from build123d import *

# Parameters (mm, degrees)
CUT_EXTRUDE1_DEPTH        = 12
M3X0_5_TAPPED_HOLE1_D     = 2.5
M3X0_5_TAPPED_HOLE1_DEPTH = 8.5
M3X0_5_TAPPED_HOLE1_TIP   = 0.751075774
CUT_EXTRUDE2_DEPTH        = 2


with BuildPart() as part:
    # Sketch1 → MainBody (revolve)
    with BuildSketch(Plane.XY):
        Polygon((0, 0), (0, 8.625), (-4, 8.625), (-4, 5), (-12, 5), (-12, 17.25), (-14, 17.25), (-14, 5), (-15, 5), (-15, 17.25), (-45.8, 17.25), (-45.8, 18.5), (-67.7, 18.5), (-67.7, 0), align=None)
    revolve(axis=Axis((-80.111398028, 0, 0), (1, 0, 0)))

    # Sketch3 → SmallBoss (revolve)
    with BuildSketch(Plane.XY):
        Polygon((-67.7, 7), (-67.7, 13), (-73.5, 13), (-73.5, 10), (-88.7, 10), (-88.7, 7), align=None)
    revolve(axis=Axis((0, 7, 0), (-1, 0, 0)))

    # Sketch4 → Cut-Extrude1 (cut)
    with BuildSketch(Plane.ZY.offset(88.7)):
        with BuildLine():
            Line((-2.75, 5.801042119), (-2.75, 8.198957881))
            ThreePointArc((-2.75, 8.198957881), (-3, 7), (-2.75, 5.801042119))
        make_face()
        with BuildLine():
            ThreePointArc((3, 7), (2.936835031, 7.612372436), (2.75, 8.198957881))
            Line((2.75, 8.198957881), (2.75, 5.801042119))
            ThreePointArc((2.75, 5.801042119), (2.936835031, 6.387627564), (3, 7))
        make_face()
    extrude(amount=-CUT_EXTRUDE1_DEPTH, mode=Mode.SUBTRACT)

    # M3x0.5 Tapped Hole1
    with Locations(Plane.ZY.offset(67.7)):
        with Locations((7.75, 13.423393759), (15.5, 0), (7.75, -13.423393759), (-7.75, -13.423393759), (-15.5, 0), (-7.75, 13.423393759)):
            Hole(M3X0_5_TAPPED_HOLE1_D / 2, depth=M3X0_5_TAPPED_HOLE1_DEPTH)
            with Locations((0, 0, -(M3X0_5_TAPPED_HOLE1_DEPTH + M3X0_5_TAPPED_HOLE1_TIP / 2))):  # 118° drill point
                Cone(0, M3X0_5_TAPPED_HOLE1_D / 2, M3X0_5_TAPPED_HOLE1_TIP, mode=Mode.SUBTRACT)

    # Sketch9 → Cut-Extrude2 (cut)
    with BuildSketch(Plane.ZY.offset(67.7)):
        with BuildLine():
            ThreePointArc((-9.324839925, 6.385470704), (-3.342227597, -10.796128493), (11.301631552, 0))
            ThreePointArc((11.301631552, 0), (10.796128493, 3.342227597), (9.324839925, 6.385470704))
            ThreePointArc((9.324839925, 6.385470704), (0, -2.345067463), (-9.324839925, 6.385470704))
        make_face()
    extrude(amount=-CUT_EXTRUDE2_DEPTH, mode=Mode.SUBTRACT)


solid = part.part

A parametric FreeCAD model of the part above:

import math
import FreeCAD as App
import Part
import Sketcher
from FreeCAD import Vector
Q = App.Units.Quantity

doc = App.newDocument("Part")
body = doc.addObject("PartDesign::Body", "Body")

sketch1 = doc.addObject("Sketcher::SketchObject", "Sketch")
body.addObject(sketch1)
sketch1.AttachmentSupport = (doc.XY_Plane, [""])
sketch1.MapMode = "FlatFace"
sketch1.addGeometry(Part.LineSegment(Vector(0, 0, 0), Vector(0, 8.6, 0)), False)
sketch1.addGeometry(Part.LineSegment(Vector(0, 8.6, 0), Vector(-4, 8.6, 0)), False)
sketch1.addGeometry(Part.LineSegment(Vector(-4, 8.6, 0), Vector(-4, 5, 0)), False)
sketch1.addGeometry(Part.LineSegment(Vector(-4, 5, 0), Vector(-12, 5, 0)), False)
sketch1.addGeometry(Part.LineSegment(Vector(-12, 5, 0), Vector(-12, 17.2, 0)), False)
sketch1.addGeometry(Part.LineSegment(Vector(-12, 17.2, 0), Vector(-14, 17.2, 0)), False)
sketch1.addGeometry(Part.LineSegment(Vector(-14, 17.2, 0), Vector(-14, 5, 0)), False)
sketch1.addGeometry(Part.LineSegment(Vector(-14, 5, 0), Vector(-15, 5, 0)), False)
sketch1.addGeometry(Part.LineSegment(Vector(-15, 5, 0), Vector(-15, 17.2, 0)), False)
sketch1.addGeometry(Part.LineSegment(Vector(-15, 17.2, 0), Vector(-45.8, 17.2, 0)), False)
sketch1.addGeometry(Part.LineSegment(Vector(-45.8, 17.2, 0), Vector(-45.8, 18.5, 0)), False)
sketch1.addGeometry(Part.LineSegment(Vector(-45.8, 18.5, 0), Vector(-67.7, 18.5, 0)), False)
sketch1.addGeometry(Part.LineSegment(Vector(-67.7, 18.5, 0), Vector(-67.7, 0, 0)), False)
sketch1.addGeometry(Part.LineSegment(Vector(-67.7, 0, 0), Vector(0, 0, 0)), False)
sketch1.addConstraint(Sketcher.Constraint("Coincident", 0, 2, 1, 1))
sketch1.addConstraint(Sketcher.Constraint("Coincident", 1, 2, 2, 1))
sketch1.addConstraint(Sketcher.Constraint("Coincident", 2, 2, 3, 1))
sketch1.addConstraint(Sketcher.Constraint("Coincident", 3, 2, 4, 1))
sketch1.addConstraint(Sketcher.Constraint("Coincident", 4, 2, 5, 1))
sketch1.addConstraint(Sketcher.Constraint("Coincident", 5, 2, 6, 1))
sketch1.addConstraint(Sketcher.Constraint("Coincident", 6, 2, 7, 1))
sketch1.addConstraint(Sketcher.Constraint("Coincident", 7, 2, 8, 1))
sketch1.addConstraint(Sketcher.Constraint("Coincident", 8, 2, 9, 1))
sketch1.addConstraint(Sketcher.Constraint("Coincident", 9, 2, 10, 1))
sketch1.addConstraint(Sketcher.Constraint("Coincident", 10, 2, 11, 1))
sketch1.addConstraint(Sketcher.Constraint("Coincident", 11, 2, 12, 1))
sketch1.addConstraint(Sketcher.Constraint("Coincident", 12, 2, 13, 1))
sketch1.addConstraint(Sketcher.Constraint("Coincident", 13, 2, 0, 1))
sketch1.addConstraint(Sketcher.Constraint("Vertical", 0))
sketch1.addConstraint(Sketcher.Constraint("Horizontal", 1))
sketch1.addConstraint(Sketcher.Constraint("Vertical", 2))
sketch1.addConstraint(Sketcher.Constraint("Horizontal", 3))
sketch1.addConstraint(Sketcher.Constraint("Vertical", 4))
sketch1.addConstraint(Sketcher.Constraint("Horizontal", 5))
sketch1.addConstraint(Sketcher.Constraint("Vertical", 6))
sketch1.addConstraint(Sketcher.Constraint("Horizontal", 7))
sketch1.addConstraint(Sketcher.Constraint("Vertical", 8))
sketch1.addConstraint(Sketcher.Constraint("Horizontal", 9))
sketch1.addConstraint(Sketcher.Constraint("Vertical", 10))
sketch1.addConstraint(Sketcher.Constraint("Horizontal", 11))
sketch1.addConstraint(Sketcher.Constraint("Vertical", 12))
sketch1.addConstraint(Sketcher.Constraint("Horizontal", 13))
sketch1.addConstraint(Sketcher.Constraint("Coincident", 13, 2, -1, 1))
sketch1.addConstraint(Sketcher.Constraint("Horizontal", 3, 2, 6, 2))
sketch1.addConstraint(Sketcher.Constraint("Horizontal", 5, 2, 8, 2))
sketch1.addConstraint(Sketcher.Constraint("DistanceX", 1, 2, 1, 1, Q("4 mm")))
sketch1.addConstraint(Sketcher.Constraint("DistanceX", 3, 2, 3, 1, Q("8 mm")))
sketch1.addConstraint(Sketcher.Constraint("DistanceX", 5, 2, 5, 1, Q("2 mm")))
sketch1.addConstraint(Sketcher.Constraint("DistanceX", 7, 2, 7, 1, Q("1 mm")))
sketch1.addConstraint(Sketcher.Constraint("DistanceX", 9, 2, 9, 1, Q("30.8 mm")))
sketch1.addConstraint(Sketcher.Constraint("DistanceX", 11, 2, 11, 1, Q("21.9 mm")))
sketch1.addConstraint(Sketcher.Constraint("DistanceY", 12, 2, 12, 1, Q("18.5 mm")))
sketch1.addConstraint(Sketcher.Constraint("DistanceY", -1, 1, 2, 2, Q("5 mm")))
sketch1.addConstraint(Sketcher.Constraint("DistanceY", 4, 1, 4, 2, Q("12.25 mm")))
sketch1.addConstraint(Sketcher.Constraint("DistanceY", 0, 1, 0, 2, Q("8.625 mm")))
revolution = doc.addObject("PartDesign::Revolution", "Revolution")
body.addObject(revolution)
revolution.Profile = sketch1
revolution.ReferenceAxis = (sketch1, ["H_Axis"])
revolution.Angle = 360

sketch2 = doc.addObject("Sketcher::SketchObject", "Sketch001")
body.addObject(sketch2)
sketch2.AttachmentSupport = (doc.XY_Plane, [""])
sketch2.MapMode = "FlatFace"
sketch2.addGeometry(Part.LineSegment(Vector(-67.7, 7, 0), Vector(-67.7, 13, 0)), False)
sketch2.addGeometry(Part.LineSegment(Vector(-67.7, 13, 0), Vector(-73.5, 13, 0)), False)
sketch2.addGeometry(Part.LineSegment(Vector(-73.5, 13, 0), Vector(-73.5, 10, 0)), False)
sketch2.addGeometry(Part.LineSegment(Vector(-73.5, 10, 0), Vector(-88.7, 10, 0)), False)
sketch2.addGeometry(Part.LineSegment(Vector(-88.7, 10, 0), Vector(-88.7, 7, 0)), False)
sketch2.addGeometry(Part.LineSegment(Vector(-88.7, 7, 0), Vector(-67.7, 7, 0)), False)
sketch2.addGeometry(Part.LineSegment(Vector(-67.7, 7, 0), Vector(-88.7, 7, 0)), True)
sketch2.addConstraint(Sketcher.Constraint("Coincident", 0, 2, 1, 1))
sketch2.addConstraint(Sketcher.Constraint("Coincident", 1, 2, 2, 1))
sketch2.addConstraint(Sketcher.Constraint("Coincident", 2, 2, 3, 1))
sketch2.addConstraint(Sketcher.Constraint("Coincident", 3, 2, 4, 1))
sketch2.addConstraint(Sketcher.Constraint("Coincident", 4, 2, 5, 1))
sketch2.addConstraint(Sketcher.Constraint("Coincident", 5, 2, 0, 1))
sketch2.addConstraint(Sketcher.Constraint("Vertical", 0))
sketch2.addConstraint(Sketcher.Constraint("Horizontal", 1))
sketch2.addConstraint(Sketcher.Constraint("Vertical", 2))
sketch2.addConstraint(Sketcher.Constraint("Horizontal", 3))
sketch2.addConstraint(Sketcher.Constraint("Vertical", 4))
sketch2.addConstraint(Sketcher.Constraint("Horizontal", 5))
sketch2.addConstraint(Sketcher.Constraint("Horizontal", 6))
sketch2.addConstraint(Sketcher.Constraint("Coincident", 6, 1, 5, 2))
sketch2.addConstraint(Sketcher.Constraint("Vertical", 3, 2, 6, 2))
sketch2.addConstraint(Sketcher.Constraint("Equal", 2, 4))
sketch2.addConstraint(Sketcher.Constraint("DistanceX", 5, 1, 5, 2, Q("21 mm")))
sketch2.addConstraint(Sketcher.Constraint("DistanceY", 0, 1, 0, 2, Q("6 mm")))
sketch2.addConstraint(Sketcher.Constraint("DistanceX", 1, 2, 1, 1, Q("5.8 mm")))
sketch2.addConstraint(Sketcher.Constraint("DistanceY", -1, 1, 0, 2, Q("13 mm")))
sketch2.addConstraint(Sketcher.Constraint("DistanceX", 0, 2, -1, 1, Q("67.7 mm")))
revolution2 = doc.addObject("PartDesign::Revolution", "Revolution001")
body.addObject(revolution2)
revolution2.Profile = sketch2
revolution2.ReferenceAxis = (sketch2, ["Axis0"])
revolution2.Angle = 360

sketch3 = doc.addObject("Sketcher::SketchObject", "Sketch002")
body.addObject(sketch3)
sketch3.AttachmentSupport = (doc.YZ_Plane, [""])
sketch3.MapMode = "FlatFace"
sketch3.AttachmentOffset = App.Placement(Vector(0, 0, -88.7), App.Rotation())
sketch3.addGeometry(Part.LineSegment(Vector(5.8, -2.8, 0), Vector(8.2, -2.8, 0)), False)
sketch3.addGeometry(Part.ArcOfCircle(Part.Circle(Vector(7, 0, 0), Vector(0, 0, 1), 3), math.radians(-114), math.radians(-66)), False)
sketch3.addGeometry(Part.ArcOfCircle(Part.Circle(Vector(7, 0, 0), Vector(0, 0, 1), 3), math.radians(66), math.radians(90)), False)
sketch3.addGeometry(Part.LineSegment(Vector(8.2, 2.8, 0), Vector(5.8, 2.8, 0)), False)
sketch3.addGeometry(Part.ArcOfCircle(Part.Circle(Vector(7, 0, 0), Vector(0, 0, 1), 3), math.radians(90), math.radians(114)), False)
sketch3.addConstraint(Sketcher.Constraint("Coincident", 0, 1, 1, 1))
sketch3.addConstraint(Sketcher.Constraint("Coincident", 1, 2, 0, 2))
sketch3.addConstraint(Sketcher.Constraint("Coincident", 2, 1, 3, 1))
sketch3.addConstraint(Sketcher.Constraint("Coincident", 3, 2, 4, 2))
sketch3.addConstraint(Sketcher.Constraint("Tangent", 4, 1, 2, 2))
sketch3.addConstraint(Sketcher.Constraint("Horizontal", 0))
sketch3.addConstraint(Sketcher.Constraint("Horizontal", 3))
sketch3.addConstraint(Sketcher.Constraint("Coincident", 2, 3, 1, 3))
sketch3.addConstraint(Sketcher.Constraint("Equal", 1, 2))
sketch3.addConstraint(Sketcher.Constraint("Equal", 2, 4))
sketch3.addConstraint(Sketcher.Constraint("Symmetric", 1, 2, 2, 1, -1))
sketch3.addConstraint(Sketcher.Constraint("Vertical", 2, 3, 4, 1))
sketch3.addConstraint(Sketcher.Constraint("Radius", 1, Q("3 mm")))
sketch3.addConstraint(Sketcher.Constraint("DistanceX", -1, 1, 1, 3, Q("7 mm")))
sketch3.addConstraint(Sketcher.Constraint("DistanceY", 1, 2, 2, 1, Q("5.5 mm")))
pocket1 = doc.addObject("PartDesign::Pocket", "Pocket")
body.addObject(pocket1)
pocket1.Profile = sketch3
pocket1.Length = 12
pocket1.Reversed = True

sketch4 = doc.addObject("Sketcher::SketchObject", "Sketch003")
body.addObject(sketch4)
sketch4.AttachmentSupport = (doc.YZ_Plane, [""])
sketch4.MapMode = "FlatFace"
sketch4.AttachmentOffset = App.Placement(Vector(0, 0, -67.7), App.Rotation())
sketch4.addGeometry(Part.Circle(Vector(13.4, 7.8, 0), Vector(0, 0, 1), 1.2), False)
sketch4.addGeometry(Part.Circle(Vector(0, 15.5, 0), Vector(0, 0, 1), 1.2), False)
sketch4.addGeometry(Part.Circle(Vector(-13.4, 7.8, 0), Vector(0, 0, 1), 1.2), False)
sketch4.addGeometry(Part.Circle(Vector(-13.4, -7.8, 0), Vector(0, 0, 1), 1.2), False)
sketch4.addGeometry(Part.Circle(Vector(0, -15.5, 0), Vector(0, 0, 1), 1.2), False)
sketch4.addGeometry(Part.Circle(Vector(13.4, -7.8, 0), Vector(0, 0, 1), 1.2), False)
sketch4.addConstraint(Sketcher.Constraint("Equal", 0, 1))
sketch4.addConstraint(Sketcher.Constraint("Equal", 1, 2))
sketch4.addConstraint(Sketcher.Constraint("Equal", 2, 3))
sketch4.addConstraint(Sketcher.Constraint("Equal", 3, 4))
sketch4.addConstraint(Sketcher.Constraint("Equal", 4, 5))
sketch4.addConstraint(Sketcher.Constraint("Symmetric", 0, 3, 3, 3, -1, 1))
sketch4.addConstraint(Sketcher.Constraint("Symmetric", 1, 3, 4, 3, -1, 1))
sketch4.addConstraint(Sketcher.Constraint("Symmetric", 2, 3, 5, 3, -1, 1))
sketch4.addConstraint(Sketcher.Constraint("Symmetric", 0, 3, 2, 3, -2))
sketch4.addConstraint(Sketcher.Constraint("PointOnObject", 1, 3, -2))
sketch4.addConstraint(Sketcher.Constraint("Diameter", 0, Q("2.5 mm")))
sketch4.addConstraint(Sketcher.Constraint("DistanceY", 4, 3, 1, 3, Q("31 mm")))
sketch4.addConstraint(Sketcher.Constraint("DistanceY", 3, 3, 2, 3, Q("15.5 mm")))
sketch4.addConstraint(Sketcher.Constraint("DistanceX", -1, 1, 0, 3, Q("13.423394 mm")))
doc.recompute()
hole = doc.addObject("PartDesign::Hole", "Hole")
body.addObject(hole)
hole.Profile = sketch4
hole.ThreadType = "None"
hole.Diameter = 2.5
hole.DepthType = "Dimension"
hole.Depth = 8.5
hole.DrillPoint = "Angled"
hole.DrillPointAngle = 118
hole.Reversed = True

sketch5 = doc.addObject("Sketcher::SketchObject", "Sketch004")
body.addObject(sketch5)
sketch5.AttachmentSupport = (doc.YZ_Plane, [""])
sketch5.MapMode = "FlatFace"
sketch5.AttachmentOffset = App.Placement(Vector(0, 0, -67.7), App.Rotation())
sketch5.addGeometry(Part.ArcOfCircle(Part.Circle(Vector(0, 0, 0), Vector(0, 0, 1), 11), math.radians(90), math.radians(304)), False)
sketch5.addGeometry(Part.ArcOfCircle(Part.Circle(Vector(0, 0, 0), Vector(0, 0, 1), 11), math.radians(56), math.radians(90)), False)
sketch5.addGeometry(Part.ArcOfCircle(Part.Circle(Vector(7, 0, 0), Vector(0, 0, 1), 9), math.radians(94), math.radians(266)), False)
sketch5.addConstraint(Sketcher.Constraint("Tangent", 0, 1, 1, 2))
sketch5.addConstraint(Sketcher.Constraint("Coincident", 1, 1, 2, 1))
sketch5.addConstraint(Sketcher.Constraint("Coincident", 2, 2, 0, 2))
sketch5.addConstraint(Sketcher.Constraint("Coincident", 0, 3, -1, 1))
sketch5.addConstraint(Sketcher.Constraint("Equal", 0, 1))
sketch5.addConstraint(Sketcher.Constraint("PointOnObject", 2, 3, -1))
sketch5.addConstraint(Sketcher.Constraint("PointOnObject", 0, 1, -2))
sketch5.addConstraint(Sketcher.Constraint("DistanceX", -1, 1, 2, 3, Q("7 mm")))
sketch5.addConstraint(Sketcher.Constraint("Radius", 0, Q("11.301632 mm")))
sketch5.addConstraint(Sketcher.Constraint("Radius", 2, Q("9.345067 mm")))
pocket2 = doc.addObject("PartDesign::Pocket", "Pocket001")
body.addObject(pocket2)
pocket2.Profile = sketch5
pocket2.Length = 2
pocket2.Reversed = True

doc.recompute()
